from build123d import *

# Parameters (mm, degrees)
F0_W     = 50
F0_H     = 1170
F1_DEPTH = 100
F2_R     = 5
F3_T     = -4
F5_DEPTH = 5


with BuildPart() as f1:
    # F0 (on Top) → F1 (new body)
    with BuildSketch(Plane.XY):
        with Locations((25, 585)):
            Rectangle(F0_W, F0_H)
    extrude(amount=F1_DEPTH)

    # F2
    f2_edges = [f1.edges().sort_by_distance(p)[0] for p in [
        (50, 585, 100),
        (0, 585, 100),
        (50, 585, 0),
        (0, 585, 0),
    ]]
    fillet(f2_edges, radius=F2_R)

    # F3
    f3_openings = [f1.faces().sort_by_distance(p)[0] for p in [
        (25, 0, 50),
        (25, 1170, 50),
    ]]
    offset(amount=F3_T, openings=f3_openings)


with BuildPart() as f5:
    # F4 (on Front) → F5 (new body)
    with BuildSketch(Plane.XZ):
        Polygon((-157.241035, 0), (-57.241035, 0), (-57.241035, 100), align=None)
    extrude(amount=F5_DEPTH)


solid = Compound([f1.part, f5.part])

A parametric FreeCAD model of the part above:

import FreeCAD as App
import Part
import Sketcher

V = App.Vector


def edges_at(feature, points):
    """Names of the edges that pass closest to the given points."""
    edges = feature.Shape.Edges
    near = lambda p: min(range(len(edges)), key=lambda i: edges[i].distToShape(Part.Vertex(*p))[0])
    return sorted({f"Edge{near(p) + 1}" for p in points})


def faces_at(feature, points):
    """Names of the faces that lie closest to the given points."""
    faces = feature.Shape.Faces
    near = lambda p: min(range(len(faces)), key=lambda i: faces[i].distToShape(Part.Vertex(*p))[0])
    return sorted({f"Face{near(p) + 1}" for p in points})


def add_polygon(sketch, points):
    """Adds a closed chain of lines whose ends are joined by coincident constraints."""
    first, n = sketch.GeometryCount, len(points)
    for a, b in zip(points, points[1:] + points[:1]):
        sketch.addGeometry(Part.LineSegment(App.Vector(*a, 0), App.Vector(*b, 0)), False)
    for i in range(n):
        sketch.addConstraint(Sketcher.Constraint("Coincident", first + i, 2, first + (i + 1) % n, 1))

doc = App.newDocument("Part")
body = doc.addObject("PartDesign::Body", "Body")

sketch1 = doc.addObject("Sketcher::SketchObject", "Sketch")
body.addObject(sketch1)
sketch1.AttachmentSupport = (doc.XY_Plane, [""])
sketch1.MapMode = "FlatFace"
add_polygon(sketch1, [(0, 1170), (0, 0), (50, 0), (50, 1170)])
sketch1.addConstraint([
    Sketcher.Constraint("Vertical", 0),
    Sketcher.Constraint("Horizontal", 1),
    Sketcher.Constraint("Vertical", 2),
    Sketcher.Constraint("Horizontal", 3),
    Sketcher.Constraint("Coincident", 0, 2, -1, 1),
    Sketcher.Constraint("DistanceX", 1, 1, 1, 2, 50.0),
    Sketcher.Constraint("DistanceY", 0, 2, 0, 1, 1170.0),
])
pad1 = doc.addObject("PartDesign::Pad", "Pad")
body.addObject(pad1)
pad1.Profile = sketch1
pad1.Length = 100
doc.recompute()

fillet = doc.addObject("PartDesign::Fillet", "Fillet")
body.addObject(fillet)
fillet.Base = (pad1, edges_at(pad1, [
    (50, 585, 100),
    (0, 585, 100),
    (50, 585, 0),
    (0, 585, 0),
]))
fillet.Radius = 5
doc.recompute()

thickness = doc.addObject("PartDesign::Thickness", "Thickness")
body.addObject(thickness)
thickness.Base = (fillet, faces_at(fillet, [(25, 0, 50), (25, 1170, 50)]))
thickness.Value = 4
thickness.Reversed = True
thickness.Join = "Arc"
body2 = doc.addObject("PartDesign::Body", "Body001")

sketch2 = doc.addObject("Sketcher::SketchObject", "Sketch001")
body2.addObject(sketch2)
sketch2.AttachmentSupport = (doc.getObject("XZ_Plane001"), [""])
sketch2.MapMode = "FlatFace"
add_polygon(sketch2, [(-157, 0), (-57, 0), (-57, 100)])
sketch2.addConstraint([
    Sketcher.Constraint("Horizontal", 0),
    Sketcher.Constraint("Vertical", 1),
    Sketcher.Constraint("PointOnObject", 0, 2, -1),
    Sketcher.Constraint("Equal", 0, 1),
    Sketcher.Constraint("DistanceX", 0, 1, 0, 2, 100.0),
    Sketcher.Constraint("DistanceX", 0, 2, -1, 1, 57.241035),
])
pad2 = doc.addObject("PartDesign::Pad", "Pad001")
body2.addObject(pad2)
pad2.Profile = sketch2
pad2.Length = 5

doc.recompute()
